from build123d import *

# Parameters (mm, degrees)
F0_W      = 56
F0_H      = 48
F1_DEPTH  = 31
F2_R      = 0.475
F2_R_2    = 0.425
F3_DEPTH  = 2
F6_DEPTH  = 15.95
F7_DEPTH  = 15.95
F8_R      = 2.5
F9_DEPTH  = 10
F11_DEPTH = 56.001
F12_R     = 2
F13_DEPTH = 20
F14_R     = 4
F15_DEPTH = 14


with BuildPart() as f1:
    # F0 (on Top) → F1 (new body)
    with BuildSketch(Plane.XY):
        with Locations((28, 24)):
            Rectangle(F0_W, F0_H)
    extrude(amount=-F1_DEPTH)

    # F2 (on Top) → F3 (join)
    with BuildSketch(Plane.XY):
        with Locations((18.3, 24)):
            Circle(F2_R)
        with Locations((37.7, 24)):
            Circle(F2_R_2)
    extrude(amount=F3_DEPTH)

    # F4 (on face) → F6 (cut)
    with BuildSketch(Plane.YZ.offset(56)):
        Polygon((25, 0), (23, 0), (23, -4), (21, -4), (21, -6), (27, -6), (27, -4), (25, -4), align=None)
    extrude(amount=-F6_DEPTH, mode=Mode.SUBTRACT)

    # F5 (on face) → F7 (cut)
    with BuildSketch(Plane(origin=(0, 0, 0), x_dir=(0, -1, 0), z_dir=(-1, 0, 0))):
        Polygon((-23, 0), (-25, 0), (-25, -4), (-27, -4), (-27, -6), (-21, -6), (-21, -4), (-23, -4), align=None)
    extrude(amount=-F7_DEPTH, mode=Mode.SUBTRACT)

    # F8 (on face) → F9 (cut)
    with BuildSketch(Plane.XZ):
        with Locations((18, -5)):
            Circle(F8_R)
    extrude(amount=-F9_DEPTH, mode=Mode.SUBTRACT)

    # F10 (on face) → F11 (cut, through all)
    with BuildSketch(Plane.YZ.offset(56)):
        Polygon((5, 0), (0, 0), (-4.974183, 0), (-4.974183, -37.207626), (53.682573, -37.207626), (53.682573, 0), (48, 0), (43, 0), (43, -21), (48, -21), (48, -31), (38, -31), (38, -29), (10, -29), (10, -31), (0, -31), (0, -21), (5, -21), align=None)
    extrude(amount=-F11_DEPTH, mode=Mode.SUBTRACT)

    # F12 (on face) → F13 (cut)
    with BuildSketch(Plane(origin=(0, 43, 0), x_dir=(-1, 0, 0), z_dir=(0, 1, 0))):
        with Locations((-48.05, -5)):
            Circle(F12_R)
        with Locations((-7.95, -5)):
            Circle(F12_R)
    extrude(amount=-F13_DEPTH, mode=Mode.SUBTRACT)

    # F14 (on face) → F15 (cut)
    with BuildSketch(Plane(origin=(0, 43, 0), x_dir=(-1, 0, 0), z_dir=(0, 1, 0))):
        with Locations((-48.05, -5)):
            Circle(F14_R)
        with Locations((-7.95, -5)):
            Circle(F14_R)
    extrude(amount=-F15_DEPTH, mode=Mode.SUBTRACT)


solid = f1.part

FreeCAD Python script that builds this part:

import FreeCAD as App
import Part
import Sketcher
from FreeCAD import Vector
Q = App.Units.Quantity

doc = App.newDocument("Part")
body = doc.addObject("PartDesign::Body", "Body")

# Sketch on XY plane
sketch1 = body.newObject("Sketcher::SketchObject", "Sketch")
sketch1.AttachmentSupport = (doc.getObject("XY_Plane"), [""])
sketch1.MapMode = "FlatFace"
sketch1.addGeometry(Part.LineSegment(Vector(0, 48, 0), Vector(0, 0, 0)), False)
sketch1.addGeometry(Part.LineSegment(Vector(0, 0, 0), Vector(56, 0, 0)), False)
sketch1.addGeometry(Part.LineSegment(Vector(56, 0, 0), Vector(56, 48, 0)), False)
sketch1.addGeometry(Part.LineSegment(Vector(56, 48, 0), Vector(0, 48, 0)), False)
sketch1.addConstraint(Sketcher.Constraint("Coincident", 0, 2, 1, 1))
sketch1.addConstraint(Sketcher.Constraint("Coincident", 1, 2, 2, 1))
sketch1.addConstraint(Sketcher.Constraint("Coincident", 2, 2, 3, 1))
sketch1.addConstraint(Sketcher.Constraint("Coincident", 3, 2, 0, 1))
sketch1.addConstraint(Sketcher.Constraint("Vertical", 0))
sketch1.addConstraint(Sketcher.Constraint("Horizontal", 1))
sketch1.addConstraint(Sketcher.Constraint("Vertical", 2))
sketch1.addConstraint(Sketcher.Constraint("Horizontal", 3))
sketch1.addConstraint(Sketcher.Constraint("Coincident", 0, 2, -1, 1))
sketch1.addConstraint(Sketcher.Constraint("DistanceX", 1, 1, 1, 2, Q("56 mm")))
sketch1.addConstraint(Sketcher.Constraint("DistanceY", 0, 2, 0, 1, Q("48 mm")))
pad1 = body.newObject("PartDesign::Pad", "Pad")
pad1.Profile = sketch1
pad1.Length = 31
pad1.Reversed = True

# Sketch on XY plane
sketch2 = body.newObject("Sketcher::SketchObject", "Sketch001")
sketch2.AttachmentSupport = (doc.getObject("XY_Plane"), [""])
sketch2.MapMode = "FlatFace"
sketch2.addGeometry(Part.Circle(Vector(18.3, 24, 0), Vector(0, 0, 1), 0.47), False)
sketch2.addGeometry(Part.Circle(Vector(37.7, 24, 0), Vector(0, 0, 1), 0.42), False)
sketch2.addConstraint(Sketcher.Constraint("Horizontal", 0, 3, 1, 3))
sketch2.addConstraint(Sketcher.Constraint("Diameter", 0, Q("0.95 mm")))
sketch2.addConstraint(Sketcher.Constraint("Diameter", 1, Q("0.85 mm")))
sketch2.addConstraint(Sketcher.Constraint("DistanceY", -1, 1, 0, 3, Q("24 mm")))
sketch2.addConstraint(Sketcher.Constraint("DistanceX", -1, 1, 0, 3, Q("18.3 mm")))
sketch2.addConstraint(Sketcher.Constraint("DistanceX", -1, 1, 1, 3, Q("37.7 mm")))
pad2 = body.newObject("PartDesign::Pad", "Pad001")
pad2.Profile = sketch2
pad2.Length = 2

# Sketch on YZ plane
sketch3 = body.newObject("Sketcher::SketchObject", "Sketch002")
sketch3.AttachmentSupport = (doc.getObject("YZ_Plane"), [""])
sketch3.MapMode = "FlatFace"
sketch3.AttachmentOffset = App.Placement(Vector(0, 0, 56), App.Rotation())
sketch3.addGeometry(Part.LineSegment(Vector(25, 0, 0), Vector(23, 0, 0)), False)
sketch3.addGeometry(Part.LineSegment(Vector(23, 0, 0), Vector(23, -4, 0)), False)
sketch3.addGeometry(Part.LineSegment(Vector(23, -4, 0), Vector(21, -4, 0)), False)
sketch3.addGeometry(Part.LineSegment(Vector(21, -4, 0), Vector(21, -6, 0)), False)
sketch3.addGeometry(Part.LineSegment(Vector(21, -6, 0), Vector(27, -6, 0)), False)
sketch3.addGeometry(Part.LineSegment(Vector(27, -6, 0), Vector(27, -4, 0)), False)
sketch3.addGeometry(Part.LineSegment(Vector(27, -4, 0), Vector(25, -4, 0)), False)
sketch3.addGeometry(Part.LineSegment(Vector(25, -4, 0), Vector(25, 0, 0)), False)
sketch3.addConstraint(Sketcher.Constraint("Coincident", 0, 2, 1, 1))
sketch3.addConstraint(Sketcher.Constraint("Coincident", 1, 2, 2, 1))
sketch3.addConstraint(Sketcher.Constraint("Coincident", 2, 2, 3, 1))
sketch3.addConstraint(Sketcher.Constraint("Coincident", 3, 2, 4, 1))
sketch3.addConstraint(Sketcher.Constraint("Coincident", 4, 2, 5, 1))
sketch3.addConstraint(Sketcher.Constraint("Coincident", 5, 2, 6, 1))
sketch3.addConstraint(Sketcher.Constraint("Coincident", 6, 2, 7, 1))
sketch3.addConstraint(Sketcher.Constraint("Coincident", 7, 2, 0, 1))
sketch3.addConstraint(Sketcher.Constraint("Horizontal", 0))
sketch3.addConstraint(Sketcher.Constraint("Vertical", 1))
sketch3.addConstraint(Sketcher.Constraint("Horizontal", 2))
sketch3.addConstraint(Sketcher.Constraint("Vertical", 3))
sketch3.addConstraint(Sketcher.Constraint("Horizontal", 4))
sketch3.addConstraint(Sketcher.Constraint("Vertical", 5))
sketch3.addConstraint(Sketcher.Constraint("Horizontal", 6))
sketch3.addConstraint(Sketcher.Constraint("Vertical", 7))
sketch3.addConstraint(Sketcher.Constraint("PointOnObject", 0, 2, -1))
sketch3.addConstraint(Sketcher.Constraint("Horizontal", 2, 2, 5, 2))
sketch3.addConstraint(Sketcher.Constraint("Equal", 0, 2))
sketch3.addConstraint(Sketcher.Constraint("Equal", 2, 6))
sketch3.addConstraint(Sketcher.Constraint("Equal", 6, 3))
sketch3.addConstraint(Sketcher.Constraint("DistanceX", 0, 2, 0, 1, Q("2 mm")))
sketch3.addConstraint(Sketcher.Constraint("DistanceY", 1, 2, 1, 1, Q("4 mm")))
sketch3.addConstraint(Sketcher.Constraint("DistanceX", -1, 1, 0, 2, Q("23 mm")))
pocket1 = body.newObject("PartDesign::Pocket", "Pocket")
pocket1.Profile = sketch3
pocket1.Length = 15.95

# Sketch on YZ plane
sketch4 = body.newObject("Sketcher::SketchObject", "Sketch003")
sketch4.AttachmentSupport = (doc.getObject("YZ_Plane"), [""])
sketch4.MapMode = "FlatFace"
sketch4.addGeometry(Part.LineSegment(Vector(23, 0, 0), Vector(25, 0, 0)), False)
sketch4.addGeometry(Part.LineSegment(Vector(25, 0, 0), Vector(25, -4, 0)), False)
sketch4.addGeometry(Part.LineSegment(Vector(25, -4, 0), Vector(27, -4, 0)), False)
sketch4.addGeometry(Part.LineSegment(Vector(27, -4, 0), Vector(27, -6, 0)), False)
sketch4.addGeometry(Part.LineSegment(Vector(27, -6, 0), Vector(21, -6, 0)), False)
sketch4.addGeometry(Part.LineSegment(Vector(21, -6, 0), Vector(21, -4, 0)), False)
sketch4.addGeometry(Part.LineSegment(Vector(21, -4, 0), Vector(23, -4, 0)), False)
sketch4.addGeometry(Part.LineSegment(Vector(23, -4, 0), Vector(23, 0, 0)), False)
sketch4.addConstraint(Sketcher.Constraint("Coincident", 0, 2, 1, 1))
sketch4.addConstraint(Sketcher.Constraint("Coincident", 1, 2, 2, 1))
sketch4.addConstraint(Sketcher.Constraint("Coincident", 2, 2, 3, 1))
sketch4.addConstraint(Sketcher.Constraint("Coincident", 3, 2, 4, 1))
sketch4.addConstraint(Sketcher.Constraint("Coincident", 4, 2, 5, 1))
sketch4.addConstraint(Sketcher.Constraint("Coincident", 5, 2, 6, 1))
sketch4.addConstraint(Sketcher.Constraint("Coincident", 6, 2, 7, 1))
sketch4.addConstraint(Sketcher.Constraint("Coincident", 7, 2, 0, 1))
sketch4.addConstraint(Sketcher.Constraint("Horizontal", 0))
sketch4.addConstraint(Sketcher.Constraint("Vertical", 1))
sketch4.addConstraint(Sketcher.Constraint("Horizontal", 2))
sketch4.addConstraint(Sketcher.Constraint("Vertical", 3))
sketch4.addConstraint(Sketcher.Constraint("Horizontal", 4))
sketch4.addConstraint(Sketcher.Constraint("Vertical", 5))
sketch4.addConstraint(Sketcher.Constraint("Horizontal", 6))
sketch4.addConstraint(Sketcher.Constraint("Vertical", 7))
sketch4.addConstraint(Sketcher.Constraint("PointOnObject", 0, 2, -1))
sketch4.addConstraint(Sketcher.Constraint("Horizontal", 2, 2, 5, 2))
sketch4.addConstraint(Sketcher.Constraint("Equal", 0, 2))
sketch4.addConstraint(Sketcher.Constraint("Equal", 2, 6))
sketch4.addConstraint(Sketcher.Constraint("Equal", 6, 3))
sketch4.addConstraint(Sketcher.Constraint("DistanceX", 0, 1, 0, 2, Q("2 mm")))
sketch4.addConstraint(Sketcher.Constraint("DistanceY", 1, 2, 1, 1, Q("4 mm")))
sketch4.addConstraint(Sketcher.Constraint("DistanceX", -1, 1, 0, 2, Q("25 mm")))
pocket2 = body.newObject("PartDesign::Pocket", "Pocket001")
pocket2.Profile = sketch4
pocket2.Length = 15.95
pocket2.Reversed = True

# Sketch on XZ plane
sketch5 = body.newObject("Sketcher::SketchObject", "Sketch004")
sketch5.AttachmentSupport = (doc.getObject("XZ_Plane"), [""])
sketch5.MapMode = "FlatFace"
sketch5.addGeometry(Part.Circle(Vector(18, -5, 0), Vector(0, 0, 1), 2.5), False)
sketch5.addConstraint(Sketcher.Constraint("Diameter", 0, Q("5 mm")))
sketch5.addConstraint(Sketcher.Constraint("DistanceX", -1, 1, 0, 3, Q("18 mm")))
sketch5.addConstraint(Sketcher.Constraint("DistanceY", 0, 3, -1, 1, Q("5 mm")))
pocket3 = body.newObject("PartDesign::Pocket", "Pocket002")
pocket3.Profile = sketch5
pocket3.Length = 10

# Sketch on YZ plane
sketch6 = body.newObject("Sketcher::SketchObject", "Sketch005")
sketch6.AttachmentSupport = (doc.getObject("YZ_Plane"), [""])
sketch6.MapMode = "FlatFace"
sketch6.AttachmentOffset = App.Placement(Vector(0, 0, 56), App.Rotation())
sketch6.addGeometry(Part.LineSegment(Vector(5, 0, 0), Vector(-5, 0, 0)), False)
sketch6.addGeometry(Part.LineSegment(Vector(-5, 0, 0), Vector(-5, -37.2, 0)), False)
sketch6.addGeometry(Part.LineSegment(Vector(-5, -37.2, 0), Vector(53.7, -37.2, 0)), False)
sketch6.addGeometry(Part.LineSegment(Vector(53.7, -37.2, 0), Vector(53.7, 0, 0)), False)
sketch6.addGeometry(Part.LineSegment(Vector(53.7, 0, 0), Vector(43, 0, 0)), False)
sketch6.addGeometry(Part.LineSegment(Vector(43, 0, 0), Vector(43, -21, 0)), False)
sketch6.addGeometry(Part.LineSegment(Vector(43, -21, 0), Vector(48, -21, 0)), False)
sketch6.addGeometry(Part.LineSegment(Vector(48, -21, 0), Vector(48, -31, 0)), False)
sketch6.addGeometry(Part.LineSegment(Vector(48, -31, 0), Vector(38, -31, 0)), False)
sketch6.addGeometry(Part.LineSegment(Vector(38, -31, 0), Vector(38, -29, 0)), False)
sketch6.addGeometry(Part.LineSegment(Vector(38, -29, 0), Vector(10, -29, 0)), False)
sketch6.addGeometry(Part.LineSegment(Vector(10, -29, 0), Vector(10, -31, 0)), False)
sketch6.addGeometry(Part.LineSegment(Vector(10, -31, 0), Vector(0, -31, 0)), False)
sketch6.addGeometry(Part.LineSegment(Vector(0, -31, 0), Vector(0, -21, 0)), False)
sketch6.addGeometry(Part.LineSegment(Vector(0, -21, 0), Vector(5, -21, 0)), False)
sketch6.addGeometry(Part.LineSegment(Vector(5, -21, 0), Vector(5, 0, 0)), False)
sketch6.addConstraint(Sketcher.Constraint("Coincident", 0, 2, 1, 1))
sketch6.addConstraint(Sketcher.Constraint("Coincident", 1, 2, 2, 1))
sketch6.addConstraint(Sketcher.Constraint("Coincident", 2, 2, 3, 1))
sketch6.addConstraint(Sketcher.Constraint("Coincident", 3, 2, 4, 1))
sketch6.addConstraint(Sketcher.Constraint("Coincident", 4, 2, 5, 1))
sketch6.addConstraint(Sketcher.Constraint("Coincident", 5, 2, 6, 1))
sketch6.addConstraint(Sketcher.Constraint("Coincident", 6, 2, 7, 1))
sketch6.addConstraint(Sketcher.Constraint("Coincident", 7, 2, 8, 1))
sketch6.addConstraint(Sketcher.Constraint("Coincident", 8, 2, 9, 1))
sketch6.addConstraint(Sketcher.Constraint("Coincident", 9, 2, 10, 1))
sketch6.addConstraint(Sketcher.Constraint("Coincident", 10, 2, 11, 1))
sketch6.addConstraint(Sketcher.Constraint("Coincident", 11, 2, 12, 1))
sketch6.addConstraint(Sketcher.Constraint("Coincident", 12, 2, 13, 1))
sketch6.addConstraint(Sketcher.Constraint("Coincident", 13, 2, 14, 1))
sketch6.addConstraint(Sketcher.Constraint("Coincident", 14, 2, 15, 1))
sketch6.addConstraint(Sketcher.Constraint("Coincident", 15, 2, 0, 1))
sketch6.addConstraint(Sketcher.Constraint("Horizontal", 0))
sketch6.addConstraint(Sketcher.Constraint("Vertical", 1))
sketch6.addConstraint(Sketcher.Constraint("Horizontal", 2))
sketch6.addConstraint(Sketcher.Constraint("Vertical", 3))
sketch6.addConstraint(Sketcher.Constraint("Horizontal", 4))
sketch6.addConstraint(Sketcher.Constraint("Vertical", 5))
sketch6.addConstraint(Sketcher.Constraint("Horizontal", 6))
sketch6.addConstraint(Sketcher.Constraint("Vertical", 7))
sketch6.addConstraint(Sketcher.Constraint("Horizontal", 8))
sketch6.addConstraint(Sketcher.Constraint("Vertical", 9))
sketch6.addConstraint(Sketcher.Constraint("Horizontal", 10))
sketch6.addConstraint(Sketcher.Constraint("Vertical", 11))
sketch6.addConstraint(Sketcher.Constraint("Horizontal", 12))
sketch6.addConstraint(Sketcher.Constraint("Vertical", 13))
sketch6.addConstraint(Sketcher.Constraint("Horizontal", 14))
sketch6.addConstraint(Sketcher.Constraint("Vertical", 15))
sketch6.addConstraint(Sketcher.Constraint("PointOnObject", 0, 2, -1))
sketch6.addConstraint(Sketcher.Constraint("PointOnObject", 3, 2, -1))
sketch6.addConstraint(Sketcher.Constraint("PointOnObject", 12, 2, -2))
sketch6.addConstraint(Sketcher.Constraint("Horizontal", 8, 2, 11, 2))
sketch6.addConstraint(Sketcher.Constraint("Horizontal", 6, 2, 13, 2))
sketch6.addConstraint(Sketcher.Constraint("Equal", 8, 12))
sketch6.addConstraint(Sketcher.Constraint("Equal", 6, 14))
sketch6.addConstraint(Sketcher.Constraint("Equal", 12, 7))
sketch6.addConstraint(Sketcher.Constraint("DistanceX", 6, 1, 6, 2, Q("5 mm")))
sketch6.addConstraint(Sketcher.Constraint("DistanceX", 8, 2, 8, 1, Q("10 mm")))
sketch6.addConstraint(Sketcher.Constraint("DistanceX", 10, 2, 10, 1, Q("28 mm")))
sketch6.addConstraint(Sketcher.Constraint("DistanceY", 5, 2, 5, 1, Q("21 mm")))
sketch6.addConstraint(Sketcher.Constraint("DistanceY", 9, 1, 9, 2, Q("2 mm")))
sketch6.addConstraint(Sketcher.Constraint("DistanceX", 0, 2, 0, 1, Q("9.974183 mm")))
sketch6.addConstraint(Sketcher.Constraint("DistanceX", 2, 1, 2, 2, Q("58.656756 mm")))
sketch6.addConstraint(Sketcher.Constraint("DistanceY", 1, 2, 1, 1, Q("37.207626 mm")))
pocket4 = body.newObject("PartDesign::Pocket", "Pocket003")
pocket4.Profile = sketch6
pocket4.Type = "ThroughAll"

# Sketch on XZ plane
sketch7 = body.newObject("Sketcher::SketchObject", "Sketch006")
sketch7.AttachmentSupport = (doc.getObject("XZ_Plane"), [""])
sketch7.MapMode = "FlatFace"
sketch7.AttachmentOffset = App.Placement(Vector(0, 0, -43), App.Rotation())
sketch7.addGeometry(Part.Circle(Vector(48, -5, 0), Vector(0, 0, 1), 2), False)
sketch7.addGeometry(Part.Circle(Vector(8, -5, 0), Vector(0, 0, 1), 2), False)
sketch7.addConstraint(Sketcher.Constraint("Equal", 0, 1))
sketch7.addConstraint(Sketcher.Constraint("Horizontal", 0, 3, 1, 3))
sketch7.addConstraint(Sketcher.Constraint("Diameter", 0, Q("4 mm")))
sketch7.addConstraint(Sketcher.Constraint("DistanceY", 0, 3, -1, 1, Q("5 mm")))
sketch7.addConstraint(Sketcher.Constraint("DistanceX", 1, 3, 0, 3, Q("40.1 mm")))
sketch7.addConstraint(Sketcher.Constraint("DistanceX", -1, 1, 0, 3, Q("48.05 mm")))
pocket5 = body.newObject("PartDesign::Pocket", "Pocket004")
pocket5.Profile = sketch7
pocket5.Length = 20
pocket5.Reversed = True

# Sketch on XZ plane
sketch8 = body.newObject("Sketcher::SketchObject", "Sketch007")
sketch8.AttachmentSupport = (doc.getObject("XZ_Plane"), [""])
sketch8.MapMode = "FlatFace"
sketch8.AttachmentOffset = App.Placement(Vector(0, 0, -43), App.Rotation())
sketch8.addGeometry(Part.Circle(Vector(48, -5, 0), Vector(0, 0, 1), 4), False)
sketch8.addGeometry(Part.Circle(Vector(8, -5, 0), Vector(0, 0, 1), 4), False)
sketch8.addConstraint(Sketcher.Constraint("Equal", 0, 1))
sketch8.addConstraint(Sketcher.Constraint("Horizontal", 0, 3, 1, 3))
sketch8.addConstraint(Sketcher.Constraint("Diameter", 0, Q("8 mm")))
sketch8.addConstraint(Sketcher.Constraint("DistanceY", 0, 3, -1, 1, Q("5 mm")))
sketch8.addConstraint(Sketcher.Constraint("DistanceX", 1, 3, 0, 3, Q("40.1 mm")))
sketch8.addConstraint(Sketcher.Constraint("DistanceX", -1, 1, 0, 3, Q("48.05 mm")))
pocket6 = body.newObject("PartDesign::Pocket", "Pocket005")
pocket6.Profile = sketch8
pocket6.Length = 14
pocket6.Reversed = True

doc.recompute()
